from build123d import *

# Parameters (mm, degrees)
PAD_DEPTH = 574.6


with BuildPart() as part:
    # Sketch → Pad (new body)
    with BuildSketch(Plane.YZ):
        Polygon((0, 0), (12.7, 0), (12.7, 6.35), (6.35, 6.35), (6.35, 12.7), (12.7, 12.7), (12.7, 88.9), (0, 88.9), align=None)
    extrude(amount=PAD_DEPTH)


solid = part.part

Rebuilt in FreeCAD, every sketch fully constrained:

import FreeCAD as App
import Part
import Sketcher
from FreeCAD import Vector
Q = App.Units.Quantity

doc = App.newDocument("Part")
params = doc.addObject("Spreadsheet::Sheet", "Params")
for row, (alias, value) in enumerate([
    ("sketch1_height", "3 in"),
    ("sketch1_width", "0.5 in"),
    ("sketch1_height2", "3.5 in"),
    ("pad1_length", "574.6 mm"),
], start=1):
    params.set(f"A{row}", alias)
    params.set(f"B{row}", "=" + value)
    params.setAlias(f"B{row}", alias)

body = doc.addObject("PartDesign::Body", "Body")

sketch1 = body.newObject("Sketcher::SketchObject", "Sketch")
sketch1.AttachmentSupport = (doc.getObject("YZ_Plane"), [""])
sketch1.MapMode = "FlatFace"
sketch1.addGeometry(Part.LineSegment(Vector(0, 0, 0), Vector(13, 0, 0)), False)
sketch1.addGeometry(Part.LineSegment(Vector(13, 0, 0), Vector(13, 6, 0)), False)
sketch1.addGeometry(Part.LineSegment(Vector(13, 6, 0), Vector(6, 6, 0)), False)
sketch1.addGeometry(Part.LineSegment(Vector(6, 6, 0), Vector(6, 13, 0)), False)
sketch1.addGeometry(Part.LineSegment(Vector(6, 13, 0), Vector(13, 13, 0)), False)
sketch1.addGeometry(Part.LineSegment(Vector(13, 13, 0), Vector(13, 89, 0)), False)
sketch1.addGeometry(Part.LineSegment(Vector(13, 89, 0), Vector(0, 89, 0)), False)
sketch1.addGeometry(Part.LineSegment(Vector(0, 89, 0), Vector(0, 0, 0)), False)
sketch1.addConstraint(Sketcher.Constraint("Coincident", 0, 2, 1, 1))
sketch1.addConstraint(Sketcher.Constraint("Coincident", 1, 2, 2, 1))
sketch1.addConstraint(Sketcher.Constraint("Coincident", 2, 2, 3, 1))
sketch1.addConstraint(Sketcher.Constraint("Coincident", 3, 2, 4, 1))
sketch1.addConstraint(Sketcher.Constraint("Coincident", 4, 2, 5, 1))
sketch1.addConstraint(Sketcher.Constraint("Coincident", 5, 2, 6, 1))
sketch1.addConstraint(Sketcher.Constraint("Coincident", 6, 2, 7, 1))
sketch1.addConstraint(Sketcher.Constraint("Coincident", 7, 2, 0, 1))
sketch1.addConstraint(Sketcher.Constraint("Horizontal", 0))
sketch1.addConstraint(Sketcher.Constraint("Vertical", 1))
sketch1.addConstraint(Sketcher.Constraint("Horizontal", 2))
sketch1.addConstraint(Sketcher.Constraint("Vertical", 3))
sketch1.addConstraint(Sketcher.Constraint("Horizontal", 4))
sketch1.addConstraint(Sketcher.Constraint("Vertical", 5))
sketch1.addConstraint(Sketcher.Constraint("Horizontal", 6))
sketch1.addConstraint(Sketcher.Constraint("Vertical", 7))
sketch1.addConstraint(Sketcher.Constraint("Coincident", 7, 2, -1, 1))
sketch1.addConstraint(Sketcher.Constraint("Vertical", 1, 2, 4, 2))
sketch1.addConstraint(Sketcher.Constraint("Equal", 4, 1))
sketch1.addConstraint(Sketcher.Constraint("Equal", 1, 3))
sketch1.addConstraint(Sketcher.Constraint("DistanceY", 5, 1, 5, 2, Q("3 in")))
sketch1.addConstraint(Sketcher.Constraint("DistanceX", 0, 1, 0, 2, Q("0.5 in")))
sketch1.addConstraint(Sketcher.Constraint("DistanceY", 7, 2, 7, 1, Q("3.5 in")))
sketch1.setExpression("Constraints[20]", "Params.sketch1_height")
sketch1.setExpression("Constraints[21]", "Params.sketch1_width")
sketch1.setExpression("Constraints[22]", "Params.sketch1_height2")
pad1 = body.newObject("PartDesign::Pad", "Pad")
pad1.Profile = sketch1
pad1.setExpression("Length", "Params.pad1_length")

doc.recompute()
